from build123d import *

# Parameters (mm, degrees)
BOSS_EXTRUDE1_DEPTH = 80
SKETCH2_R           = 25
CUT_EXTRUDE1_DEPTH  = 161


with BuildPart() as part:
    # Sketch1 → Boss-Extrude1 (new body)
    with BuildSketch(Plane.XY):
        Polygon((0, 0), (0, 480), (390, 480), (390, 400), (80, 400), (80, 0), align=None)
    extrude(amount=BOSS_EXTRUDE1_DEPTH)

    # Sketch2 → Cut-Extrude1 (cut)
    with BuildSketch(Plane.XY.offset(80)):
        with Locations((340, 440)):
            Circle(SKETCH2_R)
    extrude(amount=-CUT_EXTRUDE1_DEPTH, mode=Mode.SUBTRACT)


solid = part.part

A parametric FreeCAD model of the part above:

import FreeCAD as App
import Part
import Sketcher
from FreeCAD import Vector
Q = App.Units.Quantity


def add_polygon(sketch, points):
    """Adds a closed chain of lines whose ends are joined by coincident constraints."""
    first, n = sketch.GeometryCount, len(points)
    for a, b in zip(points, points[1:] + points[:1]):
        sketch.addGeometry(Part.LineSegment(App.Vector(*a, 0), App.Vector(*b, 0)), False)
    for i in range(n):
        sketch.addConstraint(Sketcher.Constraint("Coincident", first + i, 2, first + (i + 1) % n, 1))

doc = App.newDocument("Part")
body = doc.addObject("PartDesign::Body", "Body")

# Sketch on XY plane
sketch1 = body.newObject("Sketcher::SketchObject", "Sketch")
sketch1.AttachmentSupport = (doc.getObject("XY_Plane"), [""])
sketch1.MapMode = "FlatFace"
add_polygon(sketch1, [(0, 480), (0, 0), (80, 0), (80, 400), (390, 400), (390, 480)])  # lines 0-5
sketch1.addConstraint([
    Sketcher.Constraint("Vertical", 0),
    Sketcher.Constraint("Horizontal", 1),
    Sketcher.Constraint("Vertical", 2),
    Sketcher.Constraint("Horizontal", 3),
    Sketcher.Constraint("Vertical", 4),
    Sketcher.Constraint("Horizontal", 5),
    Sketcher.Constraint("Coincident", 0, 2, -1, 1),
    Sketcher.Constraint("Equal", 1, 4),
    Sketcher.Constraint("DistanceX", 1, 1, 1, 2, Q("80 mm")),
    Sketcher.Constraint("DistanceX", 3, 1, 3, 2, Q("310 mm")),
    Sketcher.Constraint("DistanceY", 0, 2, 0, 1, Q("480 mm")),
])
pad1 = body.newObject("PartDesign::Pad", "Pad")
pad1.Profile = sketch1
pad1.Length = 80

# Sketch on XY plane
sketch2 = body.newObject("Sketcher::SketchObject", "Sketch001")
sketch2.AttachmentSupport = (doc.getObject("XY_Plane"), [""])
sketch2.MapMode = "FlatFace"
sketch2.AttachmentOffset = App.Placement(Vector(0, 0, 80), App.Rotation())
sketch2.addGeometry(Part.Circle(Vector(340, 440, 0), Vector(0, 0, 1), 25), False)
sketch2.addConstraint([
    Sketcher.Constraint("Diameter", 0, Q("50 mm")),
    Sketcher.Constraint("DistanceX", -1, 1, 0, 3, Q("340 mm")),
    Sketcher.Constraint("DistanceY", -1, 1, 0, 3, Q("440 mm")),
])
pocket1 = body.newObject("PartDesign::Pocket", "Pocket")
pocket1.Profile = sketch2
pocket1.Length = 161

doc.recompute()
